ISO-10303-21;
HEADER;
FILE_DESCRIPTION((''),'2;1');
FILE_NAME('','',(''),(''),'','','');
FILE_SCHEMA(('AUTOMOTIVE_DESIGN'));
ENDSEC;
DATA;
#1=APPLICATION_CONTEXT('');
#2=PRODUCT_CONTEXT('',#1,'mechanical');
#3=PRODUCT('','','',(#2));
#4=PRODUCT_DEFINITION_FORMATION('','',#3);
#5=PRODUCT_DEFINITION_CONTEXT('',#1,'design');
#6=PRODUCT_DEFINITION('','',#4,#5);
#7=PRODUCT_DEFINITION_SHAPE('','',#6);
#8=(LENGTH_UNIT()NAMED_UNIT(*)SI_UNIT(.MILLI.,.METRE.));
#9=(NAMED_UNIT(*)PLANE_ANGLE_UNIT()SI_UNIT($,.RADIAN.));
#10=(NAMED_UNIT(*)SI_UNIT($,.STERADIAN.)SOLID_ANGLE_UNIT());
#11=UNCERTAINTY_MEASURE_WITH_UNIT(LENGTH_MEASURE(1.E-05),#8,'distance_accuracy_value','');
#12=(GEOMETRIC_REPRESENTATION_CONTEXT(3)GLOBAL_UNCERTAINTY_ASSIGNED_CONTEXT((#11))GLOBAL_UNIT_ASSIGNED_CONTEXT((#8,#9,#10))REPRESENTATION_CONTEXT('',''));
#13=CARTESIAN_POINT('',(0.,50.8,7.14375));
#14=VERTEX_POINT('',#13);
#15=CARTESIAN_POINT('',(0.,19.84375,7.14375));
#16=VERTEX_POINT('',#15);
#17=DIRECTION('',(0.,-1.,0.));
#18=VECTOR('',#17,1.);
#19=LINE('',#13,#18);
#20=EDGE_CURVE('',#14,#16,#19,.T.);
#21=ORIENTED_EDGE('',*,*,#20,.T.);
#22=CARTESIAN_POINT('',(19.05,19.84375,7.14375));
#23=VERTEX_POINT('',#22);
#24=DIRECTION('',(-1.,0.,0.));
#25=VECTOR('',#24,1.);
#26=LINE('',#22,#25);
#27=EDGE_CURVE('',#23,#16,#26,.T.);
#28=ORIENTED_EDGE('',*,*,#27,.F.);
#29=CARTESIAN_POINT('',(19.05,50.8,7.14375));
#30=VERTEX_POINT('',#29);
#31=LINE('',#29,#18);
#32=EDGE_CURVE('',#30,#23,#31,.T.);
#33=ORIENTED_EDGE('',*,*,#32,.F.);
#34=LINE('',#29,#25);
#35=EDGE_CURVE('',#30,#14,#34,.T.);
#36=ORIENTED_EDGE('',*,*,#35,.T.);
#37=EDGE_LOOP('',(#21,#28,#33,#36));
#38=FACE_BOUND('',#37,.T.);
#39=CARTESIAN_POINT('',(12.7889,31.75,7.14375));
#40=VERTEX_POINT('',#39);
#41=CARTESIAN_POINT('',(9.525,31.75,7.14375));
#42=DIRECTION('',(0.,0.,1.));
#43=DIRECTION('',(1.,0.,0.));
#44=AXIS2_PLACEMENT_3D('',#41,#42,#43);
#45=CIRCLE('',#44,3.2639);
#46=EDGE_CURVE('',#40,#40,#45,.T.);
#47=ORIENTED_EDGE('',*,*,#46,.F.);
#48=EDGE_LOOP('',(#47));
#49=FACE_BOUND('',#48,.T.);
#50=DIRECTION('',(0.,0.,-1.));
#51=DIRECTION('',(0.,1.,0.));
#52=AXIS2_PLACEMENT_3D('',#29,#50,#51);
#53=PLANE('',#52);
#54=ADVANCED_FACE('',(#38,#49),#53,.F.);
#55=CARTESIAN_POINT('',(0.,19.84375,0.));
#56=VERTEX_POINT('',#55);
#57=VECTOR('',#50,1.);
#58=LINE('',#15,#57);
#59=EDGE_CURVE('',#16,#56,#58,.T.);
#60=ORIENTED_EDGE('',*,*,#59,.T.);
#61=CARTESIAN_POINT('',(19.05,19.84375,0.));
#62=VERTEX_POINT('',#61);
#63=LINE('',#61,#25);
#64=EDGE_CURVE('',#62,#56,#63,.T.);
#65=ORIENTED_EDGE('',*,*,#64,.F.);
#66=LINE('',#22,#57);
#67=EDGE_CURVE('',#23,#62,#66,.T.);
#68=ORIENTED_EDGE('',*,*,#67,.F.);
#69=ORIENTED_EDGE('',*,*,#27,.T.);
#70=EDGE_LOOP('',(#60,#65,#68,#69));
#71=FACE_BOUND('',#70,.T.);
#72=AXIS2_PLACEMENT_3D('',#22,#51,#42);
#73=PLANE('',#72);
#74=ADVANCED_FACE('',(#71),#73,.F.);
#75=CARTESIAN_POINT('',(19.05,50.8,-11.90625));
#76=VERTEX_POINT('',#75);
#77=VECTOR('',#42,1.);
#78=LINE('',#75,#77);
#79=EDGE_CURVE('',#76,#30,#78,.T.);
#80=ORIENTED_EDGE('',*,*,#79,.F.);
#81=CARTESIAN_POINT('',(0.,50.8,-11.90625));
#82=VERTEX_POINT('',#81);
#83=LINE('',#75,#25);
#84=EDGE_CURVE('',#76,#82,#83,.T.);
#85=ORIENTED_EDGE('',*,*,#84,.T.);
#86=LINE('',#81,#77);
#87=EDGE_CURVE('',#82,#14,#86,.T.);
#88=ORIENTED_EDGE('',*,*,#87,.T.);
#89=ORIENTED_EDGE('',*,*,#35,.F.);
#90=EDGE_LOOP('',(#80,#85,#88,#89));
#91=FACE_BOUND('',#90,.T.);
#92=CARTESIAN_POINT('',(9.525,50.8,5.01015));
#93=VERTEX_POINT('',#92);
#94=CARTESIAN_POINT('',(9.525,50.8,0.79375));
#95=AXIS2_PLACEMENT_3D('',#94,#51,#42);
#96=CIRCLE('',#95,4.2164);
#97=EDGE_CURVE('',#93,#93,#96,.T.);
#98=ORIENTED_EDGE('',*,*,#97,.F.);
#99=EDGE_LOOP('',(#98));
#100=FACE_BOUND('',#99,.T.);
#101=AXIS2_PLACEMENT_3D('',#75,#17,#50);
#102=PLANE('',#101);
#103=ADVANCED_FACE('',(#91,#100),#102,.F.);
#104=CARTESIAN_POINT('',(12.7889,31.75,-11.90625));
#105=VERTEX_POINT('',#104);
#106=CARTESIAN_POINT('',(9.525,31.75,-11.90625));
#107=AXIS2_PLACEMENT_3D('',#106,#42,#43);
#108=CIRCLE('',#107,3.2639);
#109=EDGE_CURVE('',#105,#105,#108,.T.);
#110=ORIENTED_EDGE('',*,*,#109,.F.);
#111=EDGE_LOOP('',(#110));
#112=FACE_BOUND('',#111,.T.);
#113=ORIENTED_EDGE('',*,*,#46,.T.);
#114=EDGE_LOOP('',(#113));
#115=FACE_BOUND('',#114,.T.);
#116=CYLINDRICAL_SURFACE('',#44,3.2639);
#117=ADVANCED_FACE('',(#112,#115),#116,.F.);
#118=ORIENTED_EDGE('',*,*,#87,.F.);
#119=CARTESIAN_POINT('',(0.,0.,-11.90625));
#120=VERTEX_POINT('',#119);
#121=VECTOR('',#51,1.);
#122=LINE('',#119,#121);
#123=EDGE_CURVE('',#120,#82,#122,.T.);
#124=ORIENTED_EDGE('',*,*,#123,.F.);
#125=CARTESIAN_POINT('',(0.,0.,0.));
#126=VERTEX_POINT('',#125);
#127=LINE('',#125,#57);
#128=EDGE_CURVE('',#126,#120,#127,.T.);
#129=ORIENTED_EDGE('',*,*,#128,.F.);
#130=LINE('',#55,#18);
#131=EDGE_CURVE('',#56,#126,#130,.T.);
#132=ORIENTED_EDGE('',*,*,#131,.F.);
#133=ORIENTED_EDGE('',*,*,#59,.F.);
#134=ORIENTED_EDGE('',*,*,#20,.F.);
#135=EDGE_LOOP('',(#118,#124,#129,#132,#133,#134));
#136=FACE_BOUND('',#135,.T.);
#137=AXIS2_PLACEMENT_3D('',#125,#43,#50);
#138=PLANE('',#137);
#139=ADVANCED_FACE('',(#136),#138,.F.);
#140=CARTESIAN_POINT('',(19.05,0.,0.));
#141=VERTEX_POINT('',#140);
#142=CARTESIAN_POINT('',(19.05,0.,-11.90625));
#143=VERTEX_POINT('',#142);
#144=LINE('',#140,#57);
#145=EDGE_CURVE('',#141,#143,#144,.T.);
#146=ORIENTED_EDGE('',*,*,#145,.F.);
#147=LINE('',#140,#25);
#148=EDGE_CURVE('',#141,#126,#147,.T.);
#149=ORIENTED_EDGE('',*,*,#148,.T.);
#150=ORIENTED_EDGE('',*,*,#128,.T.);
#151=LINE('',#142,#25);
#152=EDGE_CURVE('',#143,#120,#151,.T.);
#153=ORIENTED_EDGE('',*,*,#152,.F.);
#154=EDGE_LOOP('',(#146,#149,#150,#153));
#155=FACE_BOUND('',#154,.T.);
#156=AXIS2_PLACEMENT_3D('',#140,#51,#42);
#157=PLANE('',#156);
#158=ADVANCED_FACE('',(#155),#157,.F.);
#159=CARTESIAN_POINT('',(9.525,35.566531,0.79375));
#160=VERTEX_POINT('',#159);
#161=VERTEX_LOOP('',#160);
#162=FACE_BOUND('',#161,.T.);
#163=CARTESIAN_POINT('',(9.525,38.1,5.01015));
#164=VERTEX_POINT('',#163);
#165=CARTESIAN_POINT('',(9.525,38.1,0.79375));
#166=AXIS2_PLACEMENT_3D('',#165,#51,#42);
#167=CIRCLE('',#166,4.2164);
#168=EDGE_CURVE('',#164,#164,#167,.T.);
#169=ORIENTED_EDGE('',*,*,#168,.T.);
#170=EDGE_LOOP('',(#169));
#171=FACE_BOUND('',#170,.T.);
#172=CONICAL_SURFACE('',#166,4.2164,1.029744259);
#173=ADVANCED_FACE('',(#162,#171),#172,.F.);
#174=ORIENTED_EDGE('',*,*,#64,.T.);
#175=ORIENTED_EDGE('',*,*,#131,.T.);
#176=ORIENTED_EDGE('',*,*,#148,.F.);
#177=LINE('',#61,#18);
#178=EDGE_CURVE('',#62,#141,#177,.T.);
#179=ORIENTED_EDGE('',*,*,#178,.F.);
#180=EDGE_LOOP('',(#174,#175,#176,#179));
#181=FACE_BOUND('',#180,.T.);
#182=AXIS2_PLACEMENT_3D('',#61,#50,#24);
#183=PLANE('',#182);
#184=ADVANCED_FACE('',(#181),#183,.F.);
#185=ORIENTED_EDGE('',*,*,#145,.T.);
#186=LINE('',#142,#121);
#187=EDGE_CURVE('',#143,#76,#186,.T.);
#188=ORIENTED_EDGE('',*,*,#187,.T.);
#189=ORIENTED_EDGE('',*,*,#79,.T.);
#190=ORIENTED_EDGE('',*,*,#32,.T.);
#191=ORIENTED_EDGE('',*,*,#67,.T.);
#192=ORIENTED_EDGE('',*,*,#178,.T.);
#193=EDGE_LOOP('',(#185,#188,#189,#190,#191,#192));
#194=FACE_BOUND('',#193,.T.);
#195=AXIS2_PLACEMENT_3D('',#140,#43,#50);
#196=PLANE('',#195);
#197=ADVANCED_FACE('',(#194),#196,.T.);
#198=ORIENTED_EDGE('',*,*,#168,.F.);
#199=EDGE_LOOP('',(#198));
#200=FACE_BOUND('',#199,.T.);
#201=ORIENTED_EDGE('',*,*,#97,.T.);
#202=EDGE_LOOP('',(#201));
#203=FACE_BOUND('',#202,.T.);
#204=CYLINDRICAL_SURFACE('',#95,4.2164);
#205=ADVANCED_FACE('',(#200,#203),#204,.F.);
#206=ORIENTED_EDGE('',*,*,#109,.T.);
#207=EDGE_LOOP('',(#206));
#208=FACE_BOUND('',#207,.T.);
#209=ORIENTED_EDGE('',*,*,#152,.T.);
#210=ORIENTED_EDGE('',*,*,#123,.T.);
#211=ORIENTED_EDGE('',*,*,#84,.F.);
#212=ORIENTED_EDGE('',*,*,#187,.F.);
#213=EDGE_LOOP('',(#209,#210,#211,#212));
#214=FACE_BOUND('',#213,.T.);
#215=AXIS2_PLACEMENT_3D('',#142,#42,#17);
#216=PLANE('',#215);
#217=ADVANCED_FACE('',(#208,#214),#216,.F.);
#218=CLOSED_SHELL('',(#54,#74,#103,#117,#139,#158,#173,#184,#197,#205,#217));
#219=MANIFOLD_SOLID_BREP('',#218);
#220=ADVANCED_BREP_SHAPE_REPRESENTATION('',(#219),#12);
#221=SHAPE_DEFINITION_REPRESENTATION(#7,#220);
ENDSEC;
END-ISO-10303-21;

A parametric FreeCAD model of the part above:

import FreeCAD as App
import Part
import Sketcher
from FreeCAD import Vector
Q = App.Units.Quantity


def add_polygon(sketch, points):
    """Adds a closed chain of lines whose ends are joined by coincident constraints."""
    first, n = sketch.GeometryCount, len(points)
    for a, b in zip(points, points[1:] + points[:1]):
        sketch.addGeometry(Part.LineSegment(App.Vector(*a, 0), App.Vector(*b, 0)), False)
    for i in range(n):
        sketch.addConstraint(Sketcher.Constraint("Coincident", first + i, 2, first + (i + 1) % n, 1))

doc = App.newDocument("Part")
params = doc.addObject("Spreadsheet::Sheet", "Params")
for row, (alias, value) in enumerate([
    ("sketch1_width", "2 in"),
    ("sketch1_height", "0.75 in"),
    ("sketch1_width2", "1.21875 in"),
    ("sketch1_height2", "0.46875 in"),
    ("pad1_length", "0.75 in"),
    ("sketch2_diameter", "0.257 in"),
    ("hole_diameter", "0.257 in"),
    ("sketch3_diameter", "0.332 in"),
    ("hole2_diameter", "0.332 in"),
    ("hole2_depth", "0.5 in"),
], start=1):
    params.set(f"A{row}", alias)
    params.set(f"B{row}", "=" + value)
    params.setAlias(f"B{row}", alias)

body = doc.addObject("PartDesign::Body", "Body")

# Sketch on YZ plane
sketch1 = body.newObject("Sketcher::SketchObject", "Sketch")
sketch1.AttachmentSupport = (doc.getObject("YZ_Plane"), [""])
sketch1.MapMode = "FlatFace"
add_polygon(sketch1, [(0, 0), (0, -11.90625), (50.8, -11.90625), (50.8, 7.14375), (19.84375, 7.14375), (19.84375, 0)])  # lines 0-5
sketch1.addConstraint(Sketcher.Constraint("Vertical", 0))
sketch1.addConstraint(Sketcher.Constraint("Horizontal", 1))
sketch1.addConstraint(Sketcher.Constraint("Vertical", 2))
sketch1.addConstraint(Sketcher.Constraint("Horizontal", 3))
sketch1.addConstraint(Sketcher.Constraint("Vertical", 4))
sketch1.addConstraint(Sketcher.Constraint("Horizontal", 5))
sketch1.addConstraint(Sketcher.Constraint("Coincident", 5, 2, -1, 1))
sketch1.addConstraint(Sketcher.Constraint("DistanceX", 1, 1, 1, 2, Q("2 in")))
sketch1.addConstraint(Sketcher.Constraint("DistanceY", 2, 1, 2, 2, Q("0.75 in")))
sketch1.addConstraint(Sketcher.Constraint("DistanceX", 3, 2, 3, 1, Q("1.21875 in")))
sketch1.addConstraint(Sketcher.Constraint("DistanceY", 0, 2, 0, 1, Q("0.46875 in")))
sketch1.setExpression("Constraints[13]", "Params.sketch1_width")
sketch1.setExpression("Constraints[14]", "Params.sketch1_height")
sketch1.setExpression("Constraints[15]", "Params.sketch1_width2")
sketch1.setExpression("Constraints[16]", "Params.sketch1_height2")
pad1 = body.newObject("PartDesign::Pad", "Pad")
pad1.Profile = sketch1
pad1.setExpression("Length", "Params.pad1_length")

# Sketch on XY plane
sketch2 = body.newObject("Sketcher::SketchObject", "Sketch001")
sketch2.AttachmentSupport = (doc.getObject("XY_Plane"), [""])
sketch2.MapMode = "FlatFace"
sketch2.AttachmentOffset = App.Placement(Vector(0, 0, 0.28125 * 25.4), App.Rotation())
sketch2.addGeometry(Part.Circle(Vector(9.525, 31.75, 0), Vector(0, 0, 1), 3.2639), False)
sketch2.addConstraint(Sketcher.Constraint("Diameter", 0, Q("0.257 in")))
sketch2.addConstraint(Sketcher.Constraint("DistanceY", -1, 1, 0, 3, Q("1.25 in")))
sketch2.addConstraint(Sketcher.Constraint("DistanceX", -1, 1, 0, 3, Q("0.375 in")))
sketch2.setExpression("Constraints[0]", "Params.sketch2_diameter")
doc.recompute()
hole = body.newObject("PartDesign::Hole", "Hole")
hole.Profile = sketch2
hole.ThreadType = "None"
hole.setExpression("Diameter", "Params.hole_diameter")
hole.DepthType = "ThroughAll"

# Sketch on XZ plane
sketch3 = body.newObject("Sketcher::SketchObject", "Sketch002")
sketch3.AttachmentSupport = (doc.getObject("XZ_Plane"), [""])
sketch3.MapMode = "FlatFace"
sketch3.AttachmentOffset = App.Placement(Vector(0, 0, -2 * 25.4), App.Rotation())
sketch3.addGeometry(Part.Circle(Vector(9.525, 0.79375, 0), Vector(0, 0, 1), 4.2164), False)
sketch3.addConstraint(Sketcher.Constraint("Diameter", 0, Q("0.332 in")))
sketch3.addConstraint(Sketcher.Constraint("DistanceX", -1, 1, 0, 3, Q("0.375 in")))
sketch3.addConstraint(Sketcher.Constraint("DistanceY", -1, 1, 0, 3, Q("0.03125 in")))
sketch3.setExpression("Constraints[0]", "Params.sketch3_diameter")
doc.recompute()
hole2 = body.newObject("PartDesign::Hole", "Hole001")
hole2.Profile = sketch3
hole2.ThreadType = "None"
hole2.setExpression("Diameter", "Params.hole2_diameter")
hole2.DepthType = "Dimension"
hole2.setExpression("Depth", "Params.hole2_depth")
hole2.DrillPoint = "Angled"
hole2.DrillPointAngle = 118
hole2.Reversed = True

doc.recompute()
